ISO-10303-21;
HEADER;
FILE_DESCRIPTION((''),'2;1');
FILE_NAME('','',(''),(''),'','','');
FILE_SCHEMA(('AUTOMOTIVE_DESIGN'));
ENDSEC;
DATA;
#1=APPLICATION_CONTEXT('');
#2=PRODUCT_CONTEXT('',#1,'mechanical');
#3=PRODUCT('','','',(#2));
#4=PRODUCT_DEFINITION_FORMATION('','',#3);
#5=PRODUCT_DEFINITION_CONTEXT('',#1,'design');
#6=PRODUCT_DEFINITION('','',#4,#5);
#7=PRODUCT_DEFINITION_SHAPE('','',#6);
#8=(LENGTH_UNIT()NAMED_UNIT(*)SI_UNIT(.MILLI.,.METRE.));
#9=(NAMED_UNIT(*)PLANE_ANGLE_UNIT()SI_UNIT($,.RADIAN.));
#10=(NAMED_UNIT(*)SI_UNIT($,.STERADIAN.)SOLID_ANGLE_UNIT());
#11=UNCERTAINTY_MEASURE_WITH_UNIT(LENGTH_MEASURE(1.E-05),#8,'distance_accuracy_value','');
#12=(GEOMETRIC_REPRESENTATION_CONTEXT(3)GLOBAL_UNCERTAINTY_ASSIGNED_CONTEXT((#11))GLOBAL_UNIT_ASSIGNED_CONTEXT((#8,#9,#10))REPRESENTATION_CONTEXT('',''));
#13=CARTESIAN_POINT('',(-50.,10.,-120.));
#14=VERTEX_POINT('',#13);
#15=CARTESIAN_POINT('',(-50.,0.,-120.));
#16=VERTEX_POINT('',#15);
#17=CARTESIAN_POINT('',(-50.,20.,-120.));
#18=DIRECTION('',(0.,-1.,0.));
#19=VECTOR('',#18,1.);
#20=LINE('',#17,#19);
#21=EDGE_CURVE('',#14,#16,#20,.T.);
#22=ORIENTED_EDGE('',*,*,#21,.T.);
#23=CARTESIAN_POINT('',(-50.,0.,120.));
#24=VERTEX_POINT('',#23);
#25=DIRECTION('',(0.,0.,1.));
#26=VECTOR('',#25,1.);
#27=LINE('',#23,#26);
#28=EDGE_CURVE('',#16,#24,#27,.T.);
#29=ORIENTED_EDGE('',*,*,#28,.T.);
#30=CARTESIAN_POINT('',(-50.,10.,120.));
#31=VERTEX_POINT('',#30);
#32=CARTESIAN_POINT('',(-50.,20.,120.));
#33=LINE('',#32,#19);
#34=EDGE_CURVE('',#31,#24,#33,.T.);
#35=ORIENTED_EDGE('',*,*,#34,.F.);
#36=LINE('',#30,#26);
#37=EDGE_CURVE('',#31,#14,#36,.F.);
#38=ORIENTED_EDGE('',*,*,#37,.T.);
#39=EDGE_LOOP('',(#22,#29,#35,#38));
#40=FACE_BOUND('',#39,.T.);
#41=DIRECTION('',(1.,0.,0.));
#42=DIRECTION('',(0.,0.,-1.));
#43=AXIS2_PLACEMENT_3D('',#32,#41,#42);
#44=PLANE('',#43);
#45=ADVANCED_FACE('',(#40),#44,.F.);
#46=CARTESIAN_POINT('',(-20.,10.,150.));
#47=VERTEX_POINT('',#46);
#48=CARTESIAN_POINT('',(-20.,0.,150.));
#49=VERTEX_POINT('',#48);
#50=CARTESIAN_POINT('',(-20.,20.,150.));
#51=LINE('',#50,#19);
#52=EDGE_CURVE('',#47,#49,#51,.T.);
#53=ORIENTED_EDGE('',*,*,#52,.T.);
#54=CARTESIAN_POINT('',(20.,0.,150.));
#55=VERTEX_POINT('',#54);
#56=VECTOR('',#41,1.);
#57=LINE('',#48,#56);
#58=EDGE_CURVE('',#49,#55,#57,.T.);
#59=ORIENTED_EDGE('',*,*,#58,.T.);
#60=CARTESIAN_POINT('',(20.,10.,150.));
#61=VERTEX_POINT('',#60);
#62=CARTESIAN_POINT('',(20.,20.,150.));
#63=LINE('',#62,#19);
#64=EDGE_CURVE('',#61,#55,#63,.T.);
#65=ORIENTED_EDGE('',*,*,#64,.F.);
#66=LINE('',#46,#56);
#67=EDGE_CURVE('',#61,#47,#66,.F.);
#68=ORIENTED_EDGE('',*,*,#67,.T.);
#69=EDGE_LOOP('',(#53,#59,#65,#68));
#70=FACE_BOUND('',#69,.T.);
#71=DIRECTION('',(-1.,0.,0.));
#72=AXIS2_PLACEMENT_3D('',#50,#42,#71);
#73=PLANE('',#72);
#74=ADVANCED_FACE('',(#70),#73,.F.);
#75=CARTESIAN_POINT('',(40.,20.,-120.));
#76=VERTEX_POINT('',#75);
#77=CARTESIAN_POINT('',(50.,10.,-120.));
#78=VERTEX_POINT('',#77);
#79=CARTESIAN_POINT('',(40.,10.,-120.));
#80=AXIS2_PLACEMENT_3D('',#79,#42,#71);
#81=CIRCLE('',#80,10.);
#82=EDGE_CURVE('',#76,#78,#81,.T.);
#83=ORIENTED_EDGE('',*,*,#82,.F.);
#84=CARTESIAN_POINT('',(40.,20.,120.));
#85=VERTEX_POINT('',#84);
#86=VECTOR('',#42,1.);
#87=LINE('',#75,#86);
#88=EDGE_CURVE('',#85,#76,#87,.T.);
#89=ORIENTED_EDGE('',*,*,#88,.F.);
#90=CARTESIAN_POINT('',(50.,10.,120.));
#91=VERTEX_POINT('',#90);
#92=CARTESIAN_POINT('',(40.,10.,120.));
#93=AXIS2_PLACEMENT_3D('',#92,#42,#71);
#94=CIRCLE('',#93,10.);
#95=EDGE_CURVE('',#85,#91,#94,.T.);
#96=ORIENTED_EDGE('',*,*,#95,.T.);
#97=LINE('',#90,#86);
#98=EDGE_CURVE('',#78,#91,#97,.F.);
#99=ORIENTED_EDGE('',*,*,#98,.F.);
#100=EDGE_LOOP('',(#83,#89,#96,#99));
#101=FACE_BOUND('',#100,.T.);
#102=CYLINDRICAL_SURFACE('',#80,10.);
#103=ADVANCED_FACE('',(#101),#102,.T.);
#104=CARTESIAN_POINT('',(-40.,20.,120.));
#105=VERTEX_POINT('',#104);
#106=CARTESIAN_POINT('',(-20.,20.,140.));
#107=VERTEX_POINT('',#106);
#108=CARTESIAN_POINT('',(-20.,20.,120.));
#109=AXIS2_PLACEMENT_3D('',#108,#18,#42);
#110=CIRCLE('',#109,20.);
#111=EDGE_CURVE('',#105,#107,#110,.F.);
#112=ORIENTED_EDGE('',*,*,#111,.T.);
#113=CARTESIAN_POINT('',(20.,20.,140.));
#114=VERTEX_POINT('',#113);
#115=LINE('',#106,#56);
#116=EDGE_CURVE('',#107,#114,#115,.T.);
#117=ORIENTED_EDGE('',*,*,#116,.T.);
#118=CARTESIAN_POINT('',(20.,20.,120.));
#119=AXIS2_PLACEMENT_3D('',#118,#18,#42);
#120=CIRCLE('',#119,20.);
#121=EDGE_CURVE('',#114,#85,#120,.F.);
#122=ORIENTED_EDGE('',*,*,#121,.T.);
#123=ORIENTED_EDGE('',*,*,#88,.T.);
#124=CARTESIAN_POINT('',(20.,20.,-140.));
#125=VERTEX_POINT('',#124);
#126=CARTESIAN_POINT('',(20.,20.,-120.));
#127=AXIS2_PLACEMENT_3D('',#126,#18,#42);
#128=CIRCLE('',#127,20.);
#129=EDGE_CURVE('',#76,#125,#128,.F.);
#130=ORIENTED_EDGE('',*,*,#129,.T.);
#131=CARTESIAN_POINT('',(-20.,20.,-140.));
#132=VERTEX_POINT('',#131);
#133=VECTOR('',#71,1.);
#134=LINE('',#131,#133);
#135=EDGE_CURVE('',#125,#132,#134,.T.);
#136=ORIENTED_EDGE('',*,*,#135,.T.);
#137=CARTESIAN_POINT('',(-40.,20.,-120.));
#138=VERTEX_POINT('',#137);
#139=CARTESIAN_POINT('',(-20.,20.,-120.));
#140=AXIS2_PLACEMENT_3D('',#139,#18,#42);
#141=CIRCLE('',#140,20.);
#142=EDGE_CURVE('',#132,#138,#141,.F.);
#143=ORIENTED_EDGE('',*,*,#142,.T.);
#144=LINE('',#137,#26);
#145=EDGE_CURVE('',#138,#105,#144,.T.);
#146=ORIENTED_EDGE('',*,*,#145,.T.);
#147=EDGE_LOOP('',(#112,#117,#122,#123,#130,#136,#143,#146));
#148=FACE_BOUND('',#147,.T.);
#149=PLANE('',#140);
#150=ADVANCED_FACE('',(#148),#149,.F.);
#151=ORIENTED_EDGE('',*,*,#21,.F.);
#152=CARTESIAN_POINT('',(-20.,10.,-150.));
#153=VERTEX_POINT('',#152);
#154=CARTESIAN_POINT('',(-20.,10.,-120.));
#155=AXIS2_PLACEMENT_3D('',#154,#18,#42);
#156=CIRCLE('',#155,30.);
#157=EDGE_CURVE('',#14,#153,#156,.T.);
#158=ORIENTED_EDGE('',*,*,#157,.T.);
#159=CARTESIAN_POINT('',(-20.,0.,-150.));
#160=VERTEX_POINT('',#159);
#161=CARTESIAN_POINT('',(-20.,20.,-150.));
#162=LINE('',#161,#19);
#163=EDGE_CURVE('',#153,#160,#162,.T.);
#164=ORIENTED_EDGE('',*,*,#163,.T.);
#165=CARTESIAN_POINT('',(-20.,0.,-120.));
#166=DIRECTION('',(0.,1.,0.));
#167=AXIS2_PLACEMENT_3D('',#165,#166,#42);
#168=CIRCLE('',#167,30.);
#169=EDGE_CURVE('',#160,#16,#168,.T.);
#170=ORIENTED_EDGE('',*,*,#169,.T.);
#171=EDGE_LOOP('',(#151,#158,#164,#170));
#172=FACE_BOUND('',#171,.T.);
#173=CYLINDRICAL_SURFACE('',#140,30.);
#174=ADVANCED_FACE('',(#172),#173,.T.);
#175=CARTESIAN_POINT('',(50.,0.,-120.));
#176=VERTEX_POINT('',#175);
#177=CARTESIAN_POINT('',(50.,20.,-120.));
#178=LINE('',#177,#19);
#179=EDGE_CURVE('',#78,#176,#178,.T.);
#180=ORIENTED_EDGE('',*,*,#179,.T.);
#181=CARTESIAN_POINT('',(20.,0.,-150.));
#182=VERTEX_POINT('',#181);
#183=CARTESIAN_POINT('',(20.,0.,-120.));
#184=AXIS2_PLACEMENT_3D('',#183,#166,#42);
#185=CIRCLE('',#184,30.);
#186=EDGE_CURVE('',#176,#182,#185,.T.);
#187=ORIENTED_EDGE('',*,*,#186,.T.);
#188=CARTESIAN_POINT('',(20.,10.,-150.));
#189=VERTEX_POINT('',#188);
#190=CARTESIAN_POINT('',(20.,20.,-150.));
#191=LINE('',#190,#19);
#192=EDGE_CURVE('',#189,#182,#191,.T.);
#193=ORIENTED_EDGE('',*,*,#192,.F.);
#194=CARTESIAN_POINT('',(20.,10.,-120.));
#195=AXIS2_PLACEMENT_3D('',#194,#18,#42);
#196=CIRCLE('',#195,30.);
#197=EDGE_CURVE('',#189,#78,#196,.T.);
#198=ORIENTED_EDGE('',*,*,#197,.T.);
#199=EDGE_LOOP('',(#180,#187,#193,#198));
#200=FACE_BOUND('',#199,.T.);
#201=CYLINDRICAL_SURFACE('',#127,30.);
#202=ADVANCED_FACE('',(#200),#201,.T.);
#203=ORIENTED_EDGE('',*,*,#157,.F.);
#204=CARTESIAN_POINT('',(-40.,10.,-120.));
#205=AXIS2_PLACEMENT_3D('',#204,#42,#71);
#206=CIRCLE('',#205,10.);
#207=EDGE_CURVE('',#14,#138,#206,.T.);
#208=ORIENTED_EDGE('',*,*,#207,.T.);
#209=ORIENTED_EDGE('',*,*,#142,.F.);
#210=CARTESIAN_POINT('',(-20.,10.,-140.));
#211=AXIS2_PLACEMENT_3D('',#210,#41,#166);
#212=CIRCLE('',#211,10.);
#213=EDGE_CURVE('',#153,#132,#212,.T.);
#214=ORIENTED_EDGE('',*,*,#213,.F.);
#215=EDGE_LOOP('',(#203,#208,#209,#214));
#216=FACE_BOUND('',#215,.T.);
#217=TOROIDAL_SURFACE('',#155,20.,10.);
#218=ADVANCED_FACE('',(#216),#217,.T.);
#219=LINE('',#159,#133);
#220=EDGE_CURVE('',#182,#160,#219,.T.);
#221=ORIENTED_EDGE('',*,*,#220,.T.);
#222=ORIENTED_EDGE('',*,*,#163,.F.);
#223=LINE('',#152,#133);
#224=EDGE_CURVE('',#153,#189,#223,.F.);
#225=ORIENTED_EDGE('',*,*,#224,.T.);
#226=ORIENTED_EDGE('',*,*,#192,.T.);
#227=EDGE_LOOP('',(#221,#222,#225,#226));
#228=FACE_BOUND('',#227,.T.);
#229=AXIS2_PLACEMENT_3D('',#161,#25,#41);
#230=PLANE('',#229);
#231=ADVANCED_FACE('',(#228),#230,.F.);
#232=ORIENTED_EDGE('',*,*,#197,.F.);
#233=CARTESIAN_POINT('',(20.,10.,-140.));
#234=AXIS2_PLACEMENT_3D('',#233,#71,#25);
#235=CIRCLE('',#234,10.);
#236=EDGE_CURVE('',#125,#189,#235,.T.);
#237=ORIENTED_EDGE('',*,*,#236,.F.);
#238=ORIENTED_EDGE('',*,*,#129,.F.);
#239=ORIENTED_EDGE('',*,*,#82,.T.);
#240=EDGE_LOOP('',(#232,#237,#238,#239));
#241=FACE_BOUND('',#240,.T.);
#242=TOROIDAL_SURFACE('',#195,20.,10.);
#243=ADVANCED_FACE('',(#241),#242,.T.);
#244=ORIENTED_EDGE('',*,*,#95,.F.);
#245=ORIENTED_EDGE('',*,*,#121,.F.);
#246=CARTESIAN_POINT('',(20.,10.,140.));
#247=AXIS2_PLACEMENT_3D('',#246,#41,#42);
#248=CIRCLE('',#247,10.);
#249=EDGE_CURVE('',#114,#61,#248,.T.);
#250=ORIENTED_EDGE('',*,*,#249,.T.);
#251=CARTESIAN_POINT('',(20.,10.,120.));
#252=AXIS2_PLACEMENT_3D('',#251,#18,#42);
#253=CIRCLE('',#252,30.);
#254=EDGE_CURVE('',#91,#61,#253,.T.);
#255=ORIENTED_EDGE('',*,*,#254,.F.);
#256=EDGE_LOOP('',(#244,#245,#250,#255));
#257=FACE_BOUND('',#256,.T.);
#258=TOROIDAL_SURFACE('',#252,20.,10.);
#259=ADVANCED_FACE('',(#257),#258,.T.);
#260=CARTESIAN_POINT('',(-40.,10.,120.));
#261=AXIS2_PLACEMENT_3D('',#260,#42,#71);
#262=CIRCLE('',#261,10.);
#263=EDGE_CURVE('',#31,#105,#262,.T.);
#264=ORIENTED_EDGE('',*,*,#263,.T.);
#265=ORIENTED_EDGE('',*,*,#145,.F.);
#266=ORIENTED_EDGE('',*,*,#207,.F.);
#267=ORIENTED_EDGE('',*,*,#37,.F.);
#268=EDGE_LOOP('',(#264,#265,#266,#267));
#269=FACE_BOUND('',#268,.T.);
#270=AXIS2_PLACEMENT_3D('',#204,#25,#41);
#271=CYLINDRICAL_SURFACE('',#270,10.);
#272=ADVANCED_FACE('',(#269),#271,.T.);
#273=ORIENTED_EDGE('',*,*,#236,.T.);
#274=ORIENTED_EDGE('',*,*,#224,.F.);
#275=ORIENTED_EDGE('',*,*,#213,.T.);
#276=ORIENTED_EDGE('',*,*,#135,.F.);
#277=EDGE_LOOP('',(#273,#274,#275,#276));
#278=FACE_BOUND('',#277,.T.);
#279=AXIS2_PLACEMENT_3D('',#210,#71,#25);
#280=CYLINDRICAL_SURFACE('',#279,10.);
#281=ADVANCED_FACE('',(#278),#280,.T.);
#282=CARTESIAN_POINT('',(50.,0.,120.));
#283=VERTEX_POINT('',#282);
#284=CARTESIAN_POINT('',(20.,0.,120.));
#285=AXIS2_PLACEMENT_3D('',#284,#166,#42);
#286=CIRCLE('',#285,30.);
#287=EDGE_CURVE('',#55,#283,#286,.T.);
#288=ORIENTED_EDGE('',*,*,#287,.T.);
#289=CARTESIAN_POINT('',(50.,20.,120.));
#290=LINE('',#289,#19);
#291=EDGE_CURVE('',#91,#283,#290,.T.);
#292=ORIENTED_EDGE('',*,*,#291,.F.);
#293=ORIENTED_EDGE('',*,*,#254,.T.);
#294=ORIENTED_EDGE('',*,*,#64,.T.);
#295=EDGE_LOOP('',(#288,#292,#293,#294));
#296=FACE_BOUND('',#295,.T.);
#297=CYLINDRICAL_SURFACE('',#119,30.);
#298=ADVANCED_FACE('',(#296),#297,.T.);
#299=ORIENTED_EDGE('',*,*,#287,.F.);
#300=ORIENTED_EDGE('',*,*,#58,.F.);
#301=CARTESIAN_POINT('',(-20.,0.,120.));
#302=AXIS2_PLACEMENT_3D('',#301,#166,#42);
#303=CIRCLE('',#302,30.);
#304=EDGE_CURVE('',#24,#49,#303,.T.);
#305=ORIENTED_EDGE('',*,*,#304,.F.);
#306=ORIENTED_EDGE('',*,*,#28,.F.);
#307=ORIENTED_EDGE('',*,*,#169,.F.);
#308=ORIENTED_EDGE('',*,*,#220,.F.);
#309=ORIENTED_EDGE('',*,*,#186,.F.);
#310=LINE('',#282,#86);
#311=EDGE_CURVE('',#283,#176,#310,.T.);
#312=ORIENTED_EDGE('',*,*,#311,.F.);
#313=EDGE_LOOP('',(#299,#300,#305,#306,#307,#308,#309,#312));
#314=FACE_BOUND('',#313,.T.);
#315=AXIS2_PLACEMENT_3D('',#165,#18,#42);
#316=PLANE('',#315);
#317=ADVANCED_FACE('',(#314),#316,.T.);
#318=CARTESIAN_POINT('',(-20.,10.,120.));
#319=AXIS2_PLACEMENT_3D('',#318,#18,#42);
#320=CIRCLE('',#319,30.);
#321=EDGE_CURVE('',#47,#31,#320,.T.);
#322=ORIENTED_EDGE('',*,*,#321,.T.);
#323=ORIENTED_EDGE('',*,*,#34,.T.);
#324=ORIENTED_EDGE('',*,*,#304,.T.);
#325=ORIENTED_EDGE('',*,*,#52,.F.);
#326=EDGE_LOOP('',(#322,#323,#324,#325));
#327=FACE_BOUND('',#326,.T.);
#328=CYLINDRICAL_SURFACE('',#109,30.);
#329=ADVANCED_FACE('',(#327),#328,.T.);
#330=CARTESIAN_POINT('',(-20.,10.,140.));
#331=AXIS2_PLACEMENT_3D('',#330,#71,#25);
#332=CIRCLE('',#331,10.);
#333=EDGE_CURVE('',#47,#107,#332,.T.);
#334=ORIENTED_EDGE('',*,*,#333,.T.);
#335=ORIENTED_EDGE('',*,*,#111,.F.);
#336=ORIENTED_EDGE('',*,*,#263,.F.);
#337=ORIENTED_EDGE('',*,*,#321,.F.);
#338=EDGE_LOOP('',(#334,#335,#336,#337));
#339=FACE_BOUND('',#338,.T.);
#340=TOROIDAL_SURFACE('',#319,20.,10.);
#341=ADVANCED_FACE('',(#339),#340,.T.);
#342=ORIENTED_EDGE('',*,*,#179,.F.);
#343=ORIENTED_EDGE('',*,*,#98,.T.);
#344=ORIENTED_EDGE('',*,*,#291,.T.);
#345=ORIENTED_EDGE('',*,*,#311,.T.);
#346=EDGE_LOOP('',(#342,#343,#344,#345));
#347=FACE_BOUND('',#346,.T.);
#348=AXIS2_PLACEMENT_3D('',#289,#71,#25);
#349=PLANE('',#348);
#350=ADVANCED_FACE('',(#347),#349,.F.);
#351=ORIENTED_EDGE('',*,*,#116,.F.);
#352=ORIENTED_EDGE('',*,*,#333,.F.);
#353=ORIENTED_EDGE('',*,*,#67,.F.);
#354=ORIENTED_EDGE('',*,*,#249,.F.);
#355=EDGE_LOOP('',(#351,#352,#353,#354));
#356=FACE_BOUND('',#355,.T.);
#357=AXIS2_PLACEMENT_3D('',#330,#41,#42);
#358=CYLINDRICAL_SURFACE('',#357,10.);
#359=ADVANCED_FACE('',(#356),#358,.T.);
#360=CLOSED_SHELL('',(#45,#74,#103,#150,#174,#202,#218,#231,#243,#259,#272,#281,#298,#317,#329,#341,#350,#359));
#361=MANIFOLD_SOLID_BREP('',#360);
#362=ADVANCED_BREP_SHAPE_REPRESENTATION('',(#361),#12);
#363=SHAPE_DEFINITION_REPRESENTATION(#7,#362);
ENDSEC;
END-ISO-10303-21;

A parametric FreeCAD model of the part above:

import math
import FreeCAD as App
import Part
import Sketcher


def edges_at(feature, points):
    """Names of the edges that pass closest to the given points."""
    edges = feature.Shape.Edges
    near = lambda p: min(range(len(edges)), key=lambda i: edges[i].distToShape(Part.Vertex(*p))[0])
    return sorted({f"Edge{near(p) + 1}" for p in points})

doc = App.newDocument("Part")
body = doc.addObject("PartDesign::Body", "Body")

# Sketch on XZ plane
sketch1 = body.newObject("Sketcher::SketchObject", "Sketch")
sketch1.AttachmentSupport = (doc.getObject("XZ_Plane"), [""])
sketch1.MapMode = "FlatFace"
sketch1.addGeometry([
    Part.LineSegment(App.Vector(-20, 150, 0), App.Vector(20, 150, 0)),  # 0
    Part.ArcOfCircle(Part.Circle(App.Vector(20, 120, 0), App.Vector(0, 0, 1), 30), math.radians(0), math.radians(90)),  # 1
    Part.LineSegment(App.Vector(50, 120, 0), App.Vector(50, -120, 0)),  # 2
    Part.ArcOfCircle(Part.Circle(App.Vector(20, -120, 0), App.Vector(0, 0, 1), 30), math.radians(-90), math.radians(0)),  # 3
    Part.LineSegment(App.Vector(20, -150, 0), App.Vector(-20, -150, 0)),  # 4
    Part.ArcOfCircle(Part.Circle(App.Vector(-20, -120, 0), App.Vector(0, 0, 1), 30), math.radians(180), math.radians(270)),  # 5
    Part.LineSegment(App.Vector(-50, -120, 0), App.Vector(-50, 120, 0)),  # 6
    Part.ArcOfCircle(Part.Circle(App.Vector(-20, 120, 0), App.Vector(0, 0, 1), 30), math.radians(90), math.radians(180)),  # 7
], False)
sketch1.addConstraint([
    Sketcher.Constraint("Tangent", 0, 2, 1, 2),
    Sketcher.Constraint("Tangent", 1, 1, 2, 1),
    Sketcher.Constraint("Tangent", 2, 2, 3, 2),
    Sketcher.Constraint("Tangent", 3, 1, 4, 1),
    Sketcher.Constraint("Tangent", 4, 2, 5, 2),
    Sketcher.Constraint("Tangent", 5, 1, 6, 1),
    Sketcher.Constraint("Tangent", 6, 2, 7, 2),
    Sketcher.Constraint("Tangent", 7, 1, 0, 1),
    Sketcher.Constraint("Horizontal", 0),
    Sketcher.Constraint("Vertical", 2),
    Sketcher.Constraint("Horizontal", 4),
    Sketcher.Constraint("Vertical", 6),
    Sketcher.Constraint("Equal", 1, 3),
    Sketcher.Constraint("Equal", 3, 5),
    Sketcher.Constraint("Equal", 5, 7),
    Sketcher.Constraint("Symmetric", 1, 3, 5, 3, -1, 1),
    Sketcher.Constraint("Radius", 1, 30.0),
    Sketcher.Constraint("DistanceX", 0, 1, 0, 2, 40.0),
    Sketcher.Constraint("DistanceY", 2, 2, 2, 1, 240.0),
])
pad1 = body.newObject("PartDesign::Pad", "Pad")
pad1.Profile = sketch1
pad1.Length = 20
pad1.Reversed = True
doc.recompute()

fillet = body.newObject("PartDesign::Fillet", "Fillet")
fillet.Base = (pad1, edges_at(pad1, [
    (-41.213, 20, 141.213),
    (0, 20, 150),
    (41.213, 20, 141.213),
    (50, 20, 0),
    (41.213, 20, -141.213),
    (0, 20, -150),
    (-41.213, 20, -141.213),
    (-50, 20, 0),
]))
fillet.Radius = 10

doc.recompute()
